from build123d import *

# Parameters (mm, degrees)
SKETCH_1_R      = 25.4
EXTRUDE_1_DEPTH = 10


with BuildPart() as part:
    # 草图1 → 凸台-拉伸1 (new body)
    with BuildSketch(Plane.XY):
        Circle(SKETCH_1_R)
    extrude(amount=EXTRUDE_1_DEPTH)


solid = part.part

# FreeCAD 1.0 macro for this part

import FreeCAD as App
import Part
import Sketcher

doc = App.newDocument("Part")
body = doc.addObject("PartDesign::Body", "Body")

# Sketch on XY plane
sketch1 = body.newObject("Sketcher::SketchObject", "Sketch")
sketch1.AttachmentSupport = (doc.getObject("XY_Plane"), [""])
sketch1.MapMode = "FlatFace"
sketch1.addGeometry(Part.Circle(App.Vector(0, 0, 0), App.Vector(0, 0, 1), 25), False)
sketch1.addConstraint([
    Sketcher.Constraint("Coincident", 0, 3, -1, 1),
    Sketcher.Constraint("Diameter", 0, 50.8),
])
pad1 = body.newObject("PartDesign::Pad", "Pad")
pad1.Profile = sketch1
pad1.Length = 10

doc.recompute()
